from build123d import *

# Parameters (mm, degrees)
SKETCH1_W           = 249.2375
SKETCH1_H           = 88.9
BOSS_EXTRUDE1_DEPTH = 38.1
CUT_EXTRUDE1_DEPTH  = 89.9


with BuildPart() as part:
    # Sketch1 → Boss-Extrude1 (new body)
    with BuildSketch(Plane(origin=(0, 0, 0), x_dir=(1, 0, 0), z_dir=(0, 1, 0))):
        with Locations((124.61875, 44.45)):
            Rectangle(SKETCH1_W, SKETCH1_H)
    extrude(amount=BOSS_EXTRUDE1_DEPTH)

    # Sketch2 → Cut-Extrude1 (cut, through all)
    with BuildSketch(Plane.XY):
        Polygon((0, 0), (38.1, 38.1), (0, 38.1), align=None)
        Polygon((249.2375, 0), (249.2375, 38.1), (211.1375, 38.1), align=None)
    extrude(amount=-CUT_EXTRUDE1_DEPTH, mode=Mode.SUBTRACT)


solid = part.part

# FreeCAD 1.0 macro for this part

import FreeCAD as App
import Part
import Sketcher
Q = App.Units.Quantity


def add_polygon(sketch, points):
    """Adds a closed chain of lines whose ends are joined by coincident constraints."""
    first, n = sketch.GeometryCount, len(points)
    for a, b in zip(points, points[1:] + points[:1]):
        sketch.addGeometry(Part.LineSegment(App.Vector(*a, 0), App.Vector(*b, 0)), False)
    for i in range(n):
        sketch.addConstraint(Sketcher.Constraint("Coincident", first + i, 2, first + (i + 1) % n, 1))

doc = App.newDocument("Part")
body = doc.addObject("PartDesign::Body", "Body")

sketch1 = body.newObject("Sketcher::SketchObject", "Sketch")
sketch1.AttachmentSupport = (doc.getObject("XZ_Plane"), [""])
sketch1.MapMode = "FlatFace"
add_polygon(sketch1, [(0, -89), (0, 0), (249, 0), (249, -89)])
sketch1.addConstraint(Sketcher.Constraint("Vertical", 0))
sketch1.addConstraint(Sketcher.Constraint("Horizontal", 1))
sketch1.addConstraint(Sketcher.Constraint("Vertical", 2))
sketch1.addConstraint(Sketcher.Constraint("Horizontal", 3))
sketch1.addConstraint(Sketcher.Constraint("Coincident", 0, 2, -1, 1))
sketch1.addConstraint(Sketcher.Constraint("DistanceY", 0, 1, 0, 2, Q("3.5 in")))
sketch1.addConstraint(Sketcher.Constraint("DistanceX", 1, 1, 1, 2, Q("9.8125 in")))
pad1 = body.newObject("PartDesign::Pad", "Pad")
pad1.Profile = sketch1
pad1.Length = Q("1.5 in")
pad1.Reversed = True

sketch2 = body.newObject("Sketcher::SketchObject", "Sketch001")
sketch2.AttachmentSupport = (doc.getObject("XY_Plane"), [""])
sketch2.MapMode = "FlatFace"
add_polygon(sketch2, [(0, 0), (38, 38), (0, 38)])
add_polygon(sketch2, [(249, 0), (249, 38), (211, 38)])
sketch2.addConstraint(Sketcher.Constraint("Horizontal", 1))
sketch2.addConstraint(Sketcher.Constraint("Vertical", 2))
sketch2.addConstraint(Sketcher.Constraint("Vertical", 3))
sketch2.addConstraint(Sketcher.Constraint("Horizontal", 4))
sketch2.addConstraint(Sketcher.Constraint("Coincident", 2, 2, -1, 1))
sketch2.addConstraint(Sketcher.Constraint("PointOnObject", 5, 2, -1))
sketch2.addConstraint(Sketcher.Constraint("Perpendicular", 0, 5))
sketch2.addConstraint(Sketcher.Constraint("Horizontal", 1, 2, 3, 2))
sketch2.addConstraint(Sketcher.Constraint("Equal", 1, 4))
sketch2.addConstraint(Sketcher.Constraint("DistanceX", 1, 2, 1, 1, Q("1.5 in")))
sketch2.addConstraint(Sketcher.Constraint("DistanceX", -1, 1, 3, 2, Q("9.8125 in")))
pocket1 = body.newObject("PartDesign::Pocket", "Pocket")
pocket1.Profile = sketch2
pocket1.Type = "ThroughAll"

doc.recompute()
